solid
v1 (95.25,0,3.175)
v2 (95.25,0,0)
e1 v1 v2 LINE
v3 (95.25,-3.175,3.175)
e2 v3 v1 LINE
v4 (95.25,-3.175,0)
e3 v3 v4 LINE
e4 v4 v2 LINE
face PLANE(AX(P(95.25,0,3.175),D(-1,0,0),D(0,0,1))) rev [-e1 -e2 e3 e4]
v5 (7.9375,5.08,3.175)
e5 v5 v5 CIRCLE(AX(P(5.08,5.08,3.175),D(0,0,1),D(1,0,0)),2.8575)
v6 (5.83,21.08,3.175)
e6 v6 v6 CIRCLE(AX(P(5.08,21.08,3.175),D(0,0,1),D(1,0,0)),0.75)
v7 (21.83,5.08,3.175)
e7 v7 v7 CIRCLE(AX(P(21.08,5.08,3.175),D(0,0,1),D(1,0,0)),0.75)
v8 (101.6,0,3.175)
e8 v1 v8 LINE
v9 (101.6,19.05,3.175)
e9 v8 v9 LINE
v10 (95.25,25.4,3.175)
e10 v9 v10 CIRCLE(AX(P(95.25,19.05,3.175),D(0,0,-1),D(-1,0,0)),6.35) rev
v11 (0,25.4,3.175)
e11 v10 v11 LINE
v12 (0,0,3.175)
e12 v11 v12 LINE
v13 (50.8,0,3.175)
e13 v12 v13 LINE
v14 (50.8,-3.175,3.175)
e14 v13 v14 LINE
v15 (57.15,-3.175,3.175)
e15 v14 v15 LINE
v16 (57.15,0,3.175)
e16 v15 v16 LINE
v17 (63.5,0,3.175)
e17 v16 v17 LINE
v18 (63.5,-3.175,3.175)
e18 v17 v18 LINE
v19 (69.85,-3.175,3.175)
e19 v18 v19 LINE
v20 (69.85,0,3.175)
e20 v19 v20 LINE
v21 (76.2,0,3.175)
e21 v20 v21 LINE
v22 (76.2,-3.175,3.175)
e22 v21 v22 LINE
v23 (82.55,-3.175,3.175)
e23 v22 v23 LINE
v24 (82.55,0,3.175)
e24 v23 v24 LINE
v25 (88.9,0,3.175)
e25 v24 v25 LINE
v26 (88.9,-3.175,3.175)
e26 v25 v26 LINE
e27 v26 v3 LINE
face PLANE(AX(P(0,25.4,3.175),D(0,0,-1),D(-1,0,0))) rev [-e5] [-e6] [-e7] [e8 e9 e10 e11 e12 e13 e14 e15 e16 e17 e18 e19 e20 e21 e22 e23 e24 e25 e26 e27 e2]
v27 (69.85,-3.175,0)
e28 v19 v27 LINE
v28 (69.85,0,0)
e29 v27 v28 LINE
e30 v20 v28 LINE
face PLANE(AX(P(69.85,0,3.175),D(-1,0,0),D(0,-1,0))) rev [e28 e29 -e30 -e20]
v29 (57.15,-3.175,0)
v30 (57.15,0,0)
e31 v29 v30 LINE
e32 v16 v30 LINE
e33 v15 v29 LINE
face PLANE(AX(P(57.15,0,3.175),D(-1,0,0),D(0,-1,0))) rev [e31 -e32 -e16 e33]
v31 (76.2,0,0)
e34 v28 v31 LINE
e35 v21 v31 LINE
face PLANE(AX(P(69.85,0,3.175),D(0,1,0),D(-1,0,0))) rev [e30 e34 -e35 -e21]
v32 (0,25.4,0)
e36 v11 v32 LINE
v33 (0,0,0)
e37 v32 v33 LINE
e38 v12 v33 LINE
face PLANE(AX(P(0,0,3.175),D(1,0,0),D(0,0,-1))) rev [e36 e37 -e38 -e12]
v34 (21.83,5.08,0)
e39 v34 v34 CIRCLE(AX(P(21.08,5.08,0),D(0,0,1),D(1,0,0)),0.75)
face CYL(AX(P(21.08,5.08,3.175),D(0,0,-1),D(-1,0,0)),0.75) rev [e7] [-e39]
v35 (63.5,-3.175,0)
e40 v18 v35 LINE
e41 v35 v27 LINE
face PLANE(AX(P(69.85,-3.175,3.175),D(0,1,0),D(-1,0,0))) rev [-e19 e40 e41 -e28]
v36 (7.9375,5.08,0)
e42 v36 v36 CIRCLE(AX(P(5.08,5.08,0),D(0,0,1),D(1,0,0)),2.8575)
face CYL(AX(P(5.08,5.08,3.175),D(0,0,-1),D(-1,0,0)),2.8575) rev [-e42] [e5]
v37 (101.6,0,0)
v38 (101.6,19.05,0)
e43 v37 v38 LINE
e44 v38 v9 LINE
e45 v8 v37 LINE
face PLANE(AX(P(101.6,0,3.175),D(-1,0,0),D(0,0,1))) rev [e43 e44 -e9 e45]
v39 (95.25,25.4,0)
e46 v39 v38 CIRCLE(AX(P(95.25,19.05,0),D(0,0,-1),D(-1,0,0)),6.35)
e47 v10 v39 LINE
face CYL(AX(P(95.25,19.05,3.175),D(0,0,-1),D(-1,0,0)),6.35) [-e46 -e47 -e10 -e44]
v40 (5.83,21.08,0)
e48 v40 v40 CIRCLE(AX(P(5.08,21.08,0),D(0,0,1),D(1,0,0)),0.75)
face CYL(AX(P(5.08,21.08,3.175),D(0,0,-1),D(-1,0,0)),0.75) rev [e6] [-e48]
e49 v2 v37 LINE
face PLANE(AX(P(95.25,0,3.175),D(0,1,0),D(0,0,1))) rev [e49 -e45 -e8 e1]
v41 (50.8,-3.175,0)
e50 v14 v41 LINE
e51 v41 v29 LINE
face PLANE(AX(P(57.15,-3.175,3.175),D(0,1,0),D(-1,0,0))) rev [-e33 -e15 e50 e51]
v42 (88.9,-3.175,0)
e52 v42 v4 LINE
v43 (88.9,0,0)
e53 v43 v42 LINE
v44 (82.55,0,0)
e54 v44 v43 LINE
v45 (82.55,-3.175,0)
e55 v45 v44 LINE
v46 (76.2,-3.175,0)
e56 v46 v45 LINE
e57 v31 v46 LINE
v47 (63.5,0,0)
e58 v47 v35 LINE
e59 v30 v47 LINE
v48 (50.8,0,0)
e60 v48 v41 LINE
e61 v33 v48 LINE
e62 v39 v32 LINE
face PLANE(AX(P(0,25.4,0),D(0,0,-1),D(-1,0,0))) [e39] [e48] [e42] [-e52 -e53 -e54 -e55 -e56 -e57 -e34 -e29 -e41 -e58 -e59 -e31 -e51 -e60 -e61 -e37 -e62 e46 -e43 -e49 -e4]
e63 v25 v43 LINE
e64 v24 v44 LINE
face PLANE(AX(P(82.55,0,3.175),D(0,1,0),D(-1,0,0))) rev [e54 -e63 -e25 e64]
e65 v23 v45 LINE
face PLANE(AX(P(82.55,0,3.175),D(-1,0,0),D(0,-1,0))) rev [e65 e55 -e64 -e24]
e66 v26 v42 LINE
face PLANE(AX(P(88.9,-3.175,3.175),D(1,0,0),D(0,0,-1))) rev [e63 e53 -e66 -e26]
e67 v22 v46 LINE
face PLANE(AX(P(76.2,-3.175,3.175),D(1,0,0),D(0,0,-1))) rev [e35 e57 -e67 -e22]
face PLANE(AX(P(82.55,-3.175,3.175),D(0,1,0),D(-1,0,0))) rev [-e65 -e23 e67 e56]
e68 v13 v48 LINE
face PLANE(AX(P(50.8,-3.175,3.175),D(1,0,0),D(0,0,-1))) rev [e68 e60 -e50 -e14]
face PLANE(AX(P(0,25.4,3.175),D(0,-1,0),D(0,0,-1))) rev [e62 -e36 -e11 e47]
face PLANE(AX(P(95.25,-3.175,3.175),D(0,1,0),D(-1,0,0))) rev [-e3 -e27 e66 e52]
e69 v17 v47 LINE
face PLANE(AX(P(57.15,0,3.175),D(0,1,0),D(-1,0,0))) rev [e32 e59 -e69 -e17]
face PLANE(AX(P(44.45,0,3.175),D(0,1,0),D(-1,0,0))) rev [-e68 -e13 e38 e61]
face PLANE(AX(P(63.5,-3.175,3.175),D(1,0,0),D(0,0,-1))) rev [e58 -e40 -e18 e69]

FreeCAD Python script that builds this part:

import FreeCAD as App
import Part
import Sketcher
Q = App.Units.Quantity


def edges_at(feature, points):
    """Names of the edges that pass closest to the given points."""
    edges = feature.Shape.Edges
    near = lambda p: min(range(len(edges)), key=lambda i: edges[i].distToShape(Part.Vertex(*p))[0])
    return sorted({f"Edge{near(p) + 1}" for p in points})

doc = App.newDocument("Part")
body = doc.addObject("PartDesign::Body", "Body")

# Sketch on XY plane
sketch1 = body.newObject("Sketcher::SketchObject", "Sketch")
sketch1.AttachmentSupport = (doc.getObject("XY_Plane"), [""])
sketch1.MapMode = "FlatFace"
sketch1.addGeometry(Part.LineSegment(App.Vector(95.25, -3.175, 0), App.Vector(95.25, 0, 0)), False)
sketch1.addGeometry(Part.LineSegment(App.Vector(95.25, 0, 0), App.Vector(101.6, 0, 0)), False)
sketch1.addGeometry(Part.LineSegment(App.Vector(101.6, 0, 0), App.Vector(101.6, 25.4, 0)), False)
sketch1.addGeometry(Part.LineSegment(App.Vector(101.6, 25.4, 0), App.Vector(0, 25.4, 0)), False)
sketch1.addGeometry(Part.LineSegment(App.Vector(0, 25.4, 0), App.Vector(0, 0, 0)), False)
sketch1.addGeometry(Part.LineSegment(App.Vector(0, 0, 0), App.Vector(50.8, 0, 0)), False)
sketch1.addGeometry(Part.LineSegment(App.Vector(50.8, 0, 0), App.Vector(50.8, -3.175, 0)), False)
sketch1.addGeometry(Part.LineSegment(App.Vector(50.8, -3.175, 0), App.Vector(57.15, -3.175, 0)), False)
sketch1.addGeometry(Part.LineSegment(App.Vector(57.15, -3.175, 0), App.Vector(57.15, 0, 0)), False)
sketch1.addGeometry(Part.LineSegment(App.Vector(57.15, 0, 0), App.Vector(63.5, 0, 0)), False)
sketch1.addGeometry(Part.LineSegment(App.Vector(63.5, 0, 0), App.Vector(63.5, -3.175, 0)), False)
sketch1.addGeometry(Part.LineSegment(App.Vector(63.5, -3.175, 0), App.Vector(69.85, -3.175, 0)), False)
sketch1.addGeometry(Part.LineSegment(App.Vector(69.85, -3.175, 0), App.Vector(69.85, 0, 0)), False)
sketch1.addGeometry(Part.LineSegment(App.Vector(69.85, 0, 0), App.Vector(76.2, 0, 0)), False)
sketch1.addGeometry(Part.LineSegment(App.Vector(76.2, 0, 0), App.Vector(76.2, -3.175, 0)), False)
sketch1.addGeometry(Part.LineSegment(App.Vector(76.2, -3.175, 0), App.Vector(82.55, -3.175, 0)), False)
sketch1.addGeometry(Part.LineSegment(App.Vector(82.55, -3.175, 0), App.Vector(82.55, 0, 0)), False)
sketch1.addGeometry(Part.LineSegment(App.Vector(82.55, 0, 0), App.Vector(88.9, 0, 0)), False)
sketch1.addGeometry(Part.LineSegment(App.Vector(88.9, 0, 0), App.Vector(88.9, -3.175, 0)), False)
sketch1.addGeometry(Part.LineSegment(App.Vector(88.9, -3.175, 0), App.Vector(95.25, -3.175, 0)), False)
sketch1.addGeometry(Part.Circle(App.Vector(21.08, 5.08, 0), App.Vector(0, 0, 1), 0.75), False)
sketch1.addGeometry(Part.Circle(App.Vector(5.08, 5.08, 0), App.Vector(0, 0, 1), 2.8575), False)
sketch1.addGeometry(Part.Circle(App.Vector(5.08, 21.08, 0), App.Vector(0, 0, 1), 0.75), False)
sketch1.addConstraint(Sketcher.Constraint("Coincident", 0, 2, 1, 1))
sketch1.addConstraint(Sketcher.Constraint("Coincident", 1, 2, 2, 1))
sketch1.addConstraint(Sketcher.Constraint("Coincident", 2, 2, 3, 1))
sketch1.addConstraint(Sketcher.Constraint("Coincident", 3, 2, 4, 1))
sketch1.addConstraint(Sketcher.Constraint("Coincident", 4, 2, 5, 1))
sketch1.addConstraint(Sketcher.Constraint("Coincident", 5, 2, 6, 1))
sketch1.addConstraint(Sketcher.Constraint("Coincident", 6, 2, 7, 1))
sketch1.addConstraint(Sketcher.Constraint("Coincident", 7, 2, 8, 1))
sketch1.addConstraint(Sketcher.Constraint("Coincident", 8, 2, 9, 1))
sketch1.addConstraint(Sketcher.Constraint("Coincident", 9, 2, 10, 1))
sketch1.addConstraint(Sketcher.Constraint("Coincident", 10, 2, 11, 1))
sketch1.addConstraint(Sketcher.Constraint("Coincident", 11, 2, 12, 1))
sketch1.addConstraint(Sketcher.Constraint("Coincident", 12, 2, 13, 1))
sketch1.addConstraint(Sketcher.Constraint("Coincident", 13, 2, 14, 1))
sketch1.addConstraint(Sketcher.Constraint("Coincident", 14, 2, 15, 1))
sketch1.addConstraint(Sketcher.Constraint("Coincident", 15, 2, 16, 1))
sketch1.addConstraint(Sketcher.Constraint("Coincident", 16, 2, 17, 1))
sketch1.addConstraint(Sketcher.Constraint("Coincident", 17, 2, 18, 1))
sketch1.addConstraint(Sketcher.Constraint("Coincident", 18, 2, 19, 1))
sketch1.addConstraint(Sketcher.Constraint("Coincident", 19, 2, 0, 1))
sketch1.addConstraint(Sketcher.Constraint("Vertical", 0))
sketch1.addConstraint(Sketcher.Constraint("Horizontal", 1))
sketch1.addConstraint(Sketcher.Constraint("Vertical", 2))
sketch1.addConstraint(Sketcher.Constraint("Horizontal", 3))
sketch1.addConstraint(Sketcher.Constraint("Vertical", 4))
sketch1.addConstraint(Sketcher.Constraint("Horizontal", 5))
sketch1.addConstraint(Sketcher.Constraint("Vertical", 6))
sketch1.addConstraint(Sketcher.Constraint("Horizontal", 7))
sketch1.addConstraint(Sketcher.Constraint("Vertical", 8))
sketch1.addConstraint(Sketcher.Constraint("Horizontal", 9))
sketch1.addConstraint(Sketcher.Constraint("Vertical", 10))
sketch1.addConstraint(Sketcher.Constraint("Horizontal", 11))
sketch1.addConstraint(Sketcher.Constraint("Vertical", 12))
sketch1.addConstraint(Sketcher.Constraint("Horizontal", 13))
sketch1.addConstraint(Sketcher.Constraint("Vertical", 14))
sketch1.addConstraint(Sketcher.Constraint("Horizontal", 15))
sketch1.addConstraint(Sketcher.Constraint("Vertical", 16))
sketch1.addConstraint(Sketcher.Constraint("Horizontal", 17))
sketch1.addConstraint(Sketcher.Constraint("Vertical", 18))
sketch1.addConstraint(Sketcher.Constraint("Horizontal", 19))
sketch1.addConstraint(Sketcher.Constraint("Coincident", 4, 2, -1, 1))
sketch1.addConstraint(Sketcher.Constraint("Equal", 20, 22))
sketch1.addConstraint(Sketcher.Constraint("PointOnObject", 0, 2, -1))
sketch1.addConstraint(Sketcher.Constraint("PointOnObject", 8, 2, -1))
sketch1.addConstraint(Sketcher.Constraint("PointOnObject", 12, 2, -1))
sketch1.addConstraint(Sketcher.Constraint("PointOnObject", 16, 2, -1))
sketch1.addConstraint(Sketcher.Constraint("Horizontal", 20, 3, 21, 3))
sketch1.addConstraint(Sketcher.Constraint("Horizontal", 7, 2, 10, 2))
sketch1.addConstraint(Sketcher.Constraint("Horizontal", 11, 2, 14, 2))
sketch1.addConstraint(Sketcher.Constraint("Horizontal", 15, 2, 18, 2))
sketch1.addConstraint(Sketcher.Constraint("Vertical", 21, 3, 22, 3))
sketch1.addConstraint(Sketcher.Constraint("Equal", 1, 7))
sketch1.addConstraint(Sketcher.Constraint("Equal", 7, 9))
sketch1.addConstraint(Sketcher.Constraint("Equal", 9, 11))
sketch1.addConstraint(Sketcher.Constraint("Equal", 11, 13))
sketch1.addConstraint(Sketcher.Constraint("Equal", 13, 15))
sketch1.addConstraint(Sketcher.Constraint("Equal", 15, 17))
sketch1.addConstraint(Sketcher.Constraint("Equal", 17, 19))
sketch1.addConstraint(Sketcher.Constraint("DistanceX", 3, 2, 3, 1, Q("4 in")))
sketch1.addConstraint(Sketcher.Constraint("DistanceX", 5, 1, 5, 2, Q("2 in")))
sketch1.addConstraint(Sketcher.Constraint("DistanceY", 2, 1, 2, 2, Q("1 in")))
sketch1.addConstraint(Sketcher.Constraint("Diameter", 21, Q("0.225 in")))
sketch1.addConstraint(Sketcher.Constraint("DistanceY", -1, 1, 20, 3, Q("0.2 in")))
sketch1.addConstraint(Sketcher.Constraint("DistanceX", -1, 1, 21, 3, Q("0.2 in")))
sketch1.addConstraint(Sketcher.Constraint("Diameter", 20, Q("1.5 mm")))
sketch1.addConstraint(Sketcher.Constraint("DistanceY", 0, 1, 0, 2, Q("0.125 in")))
sketch1.addConstraint(Sketcher.Constraint("DistanceX", -1, 1, 20, 3, Q("21.08 mm")))
sketch1.addConstraint(Sketcher.Constraint("DistanceY", -1, 1, 22, 3, Q("21.08 mm")))
pad1 = body.newObject("PartDesign::Pad", "Pad")
pad1.Profile = sketch1
pad1.Length = Q("0.125 in")
doc.recompute()

fillet = body.newObject("PartDesign::Fillet", "Fillet")
fillet.Base = (pad1, edges_at(pad1, [(101.6, 25.4, 1.587)]))
fillet.Radius = Q("0.25 in")

doc.recompute()
